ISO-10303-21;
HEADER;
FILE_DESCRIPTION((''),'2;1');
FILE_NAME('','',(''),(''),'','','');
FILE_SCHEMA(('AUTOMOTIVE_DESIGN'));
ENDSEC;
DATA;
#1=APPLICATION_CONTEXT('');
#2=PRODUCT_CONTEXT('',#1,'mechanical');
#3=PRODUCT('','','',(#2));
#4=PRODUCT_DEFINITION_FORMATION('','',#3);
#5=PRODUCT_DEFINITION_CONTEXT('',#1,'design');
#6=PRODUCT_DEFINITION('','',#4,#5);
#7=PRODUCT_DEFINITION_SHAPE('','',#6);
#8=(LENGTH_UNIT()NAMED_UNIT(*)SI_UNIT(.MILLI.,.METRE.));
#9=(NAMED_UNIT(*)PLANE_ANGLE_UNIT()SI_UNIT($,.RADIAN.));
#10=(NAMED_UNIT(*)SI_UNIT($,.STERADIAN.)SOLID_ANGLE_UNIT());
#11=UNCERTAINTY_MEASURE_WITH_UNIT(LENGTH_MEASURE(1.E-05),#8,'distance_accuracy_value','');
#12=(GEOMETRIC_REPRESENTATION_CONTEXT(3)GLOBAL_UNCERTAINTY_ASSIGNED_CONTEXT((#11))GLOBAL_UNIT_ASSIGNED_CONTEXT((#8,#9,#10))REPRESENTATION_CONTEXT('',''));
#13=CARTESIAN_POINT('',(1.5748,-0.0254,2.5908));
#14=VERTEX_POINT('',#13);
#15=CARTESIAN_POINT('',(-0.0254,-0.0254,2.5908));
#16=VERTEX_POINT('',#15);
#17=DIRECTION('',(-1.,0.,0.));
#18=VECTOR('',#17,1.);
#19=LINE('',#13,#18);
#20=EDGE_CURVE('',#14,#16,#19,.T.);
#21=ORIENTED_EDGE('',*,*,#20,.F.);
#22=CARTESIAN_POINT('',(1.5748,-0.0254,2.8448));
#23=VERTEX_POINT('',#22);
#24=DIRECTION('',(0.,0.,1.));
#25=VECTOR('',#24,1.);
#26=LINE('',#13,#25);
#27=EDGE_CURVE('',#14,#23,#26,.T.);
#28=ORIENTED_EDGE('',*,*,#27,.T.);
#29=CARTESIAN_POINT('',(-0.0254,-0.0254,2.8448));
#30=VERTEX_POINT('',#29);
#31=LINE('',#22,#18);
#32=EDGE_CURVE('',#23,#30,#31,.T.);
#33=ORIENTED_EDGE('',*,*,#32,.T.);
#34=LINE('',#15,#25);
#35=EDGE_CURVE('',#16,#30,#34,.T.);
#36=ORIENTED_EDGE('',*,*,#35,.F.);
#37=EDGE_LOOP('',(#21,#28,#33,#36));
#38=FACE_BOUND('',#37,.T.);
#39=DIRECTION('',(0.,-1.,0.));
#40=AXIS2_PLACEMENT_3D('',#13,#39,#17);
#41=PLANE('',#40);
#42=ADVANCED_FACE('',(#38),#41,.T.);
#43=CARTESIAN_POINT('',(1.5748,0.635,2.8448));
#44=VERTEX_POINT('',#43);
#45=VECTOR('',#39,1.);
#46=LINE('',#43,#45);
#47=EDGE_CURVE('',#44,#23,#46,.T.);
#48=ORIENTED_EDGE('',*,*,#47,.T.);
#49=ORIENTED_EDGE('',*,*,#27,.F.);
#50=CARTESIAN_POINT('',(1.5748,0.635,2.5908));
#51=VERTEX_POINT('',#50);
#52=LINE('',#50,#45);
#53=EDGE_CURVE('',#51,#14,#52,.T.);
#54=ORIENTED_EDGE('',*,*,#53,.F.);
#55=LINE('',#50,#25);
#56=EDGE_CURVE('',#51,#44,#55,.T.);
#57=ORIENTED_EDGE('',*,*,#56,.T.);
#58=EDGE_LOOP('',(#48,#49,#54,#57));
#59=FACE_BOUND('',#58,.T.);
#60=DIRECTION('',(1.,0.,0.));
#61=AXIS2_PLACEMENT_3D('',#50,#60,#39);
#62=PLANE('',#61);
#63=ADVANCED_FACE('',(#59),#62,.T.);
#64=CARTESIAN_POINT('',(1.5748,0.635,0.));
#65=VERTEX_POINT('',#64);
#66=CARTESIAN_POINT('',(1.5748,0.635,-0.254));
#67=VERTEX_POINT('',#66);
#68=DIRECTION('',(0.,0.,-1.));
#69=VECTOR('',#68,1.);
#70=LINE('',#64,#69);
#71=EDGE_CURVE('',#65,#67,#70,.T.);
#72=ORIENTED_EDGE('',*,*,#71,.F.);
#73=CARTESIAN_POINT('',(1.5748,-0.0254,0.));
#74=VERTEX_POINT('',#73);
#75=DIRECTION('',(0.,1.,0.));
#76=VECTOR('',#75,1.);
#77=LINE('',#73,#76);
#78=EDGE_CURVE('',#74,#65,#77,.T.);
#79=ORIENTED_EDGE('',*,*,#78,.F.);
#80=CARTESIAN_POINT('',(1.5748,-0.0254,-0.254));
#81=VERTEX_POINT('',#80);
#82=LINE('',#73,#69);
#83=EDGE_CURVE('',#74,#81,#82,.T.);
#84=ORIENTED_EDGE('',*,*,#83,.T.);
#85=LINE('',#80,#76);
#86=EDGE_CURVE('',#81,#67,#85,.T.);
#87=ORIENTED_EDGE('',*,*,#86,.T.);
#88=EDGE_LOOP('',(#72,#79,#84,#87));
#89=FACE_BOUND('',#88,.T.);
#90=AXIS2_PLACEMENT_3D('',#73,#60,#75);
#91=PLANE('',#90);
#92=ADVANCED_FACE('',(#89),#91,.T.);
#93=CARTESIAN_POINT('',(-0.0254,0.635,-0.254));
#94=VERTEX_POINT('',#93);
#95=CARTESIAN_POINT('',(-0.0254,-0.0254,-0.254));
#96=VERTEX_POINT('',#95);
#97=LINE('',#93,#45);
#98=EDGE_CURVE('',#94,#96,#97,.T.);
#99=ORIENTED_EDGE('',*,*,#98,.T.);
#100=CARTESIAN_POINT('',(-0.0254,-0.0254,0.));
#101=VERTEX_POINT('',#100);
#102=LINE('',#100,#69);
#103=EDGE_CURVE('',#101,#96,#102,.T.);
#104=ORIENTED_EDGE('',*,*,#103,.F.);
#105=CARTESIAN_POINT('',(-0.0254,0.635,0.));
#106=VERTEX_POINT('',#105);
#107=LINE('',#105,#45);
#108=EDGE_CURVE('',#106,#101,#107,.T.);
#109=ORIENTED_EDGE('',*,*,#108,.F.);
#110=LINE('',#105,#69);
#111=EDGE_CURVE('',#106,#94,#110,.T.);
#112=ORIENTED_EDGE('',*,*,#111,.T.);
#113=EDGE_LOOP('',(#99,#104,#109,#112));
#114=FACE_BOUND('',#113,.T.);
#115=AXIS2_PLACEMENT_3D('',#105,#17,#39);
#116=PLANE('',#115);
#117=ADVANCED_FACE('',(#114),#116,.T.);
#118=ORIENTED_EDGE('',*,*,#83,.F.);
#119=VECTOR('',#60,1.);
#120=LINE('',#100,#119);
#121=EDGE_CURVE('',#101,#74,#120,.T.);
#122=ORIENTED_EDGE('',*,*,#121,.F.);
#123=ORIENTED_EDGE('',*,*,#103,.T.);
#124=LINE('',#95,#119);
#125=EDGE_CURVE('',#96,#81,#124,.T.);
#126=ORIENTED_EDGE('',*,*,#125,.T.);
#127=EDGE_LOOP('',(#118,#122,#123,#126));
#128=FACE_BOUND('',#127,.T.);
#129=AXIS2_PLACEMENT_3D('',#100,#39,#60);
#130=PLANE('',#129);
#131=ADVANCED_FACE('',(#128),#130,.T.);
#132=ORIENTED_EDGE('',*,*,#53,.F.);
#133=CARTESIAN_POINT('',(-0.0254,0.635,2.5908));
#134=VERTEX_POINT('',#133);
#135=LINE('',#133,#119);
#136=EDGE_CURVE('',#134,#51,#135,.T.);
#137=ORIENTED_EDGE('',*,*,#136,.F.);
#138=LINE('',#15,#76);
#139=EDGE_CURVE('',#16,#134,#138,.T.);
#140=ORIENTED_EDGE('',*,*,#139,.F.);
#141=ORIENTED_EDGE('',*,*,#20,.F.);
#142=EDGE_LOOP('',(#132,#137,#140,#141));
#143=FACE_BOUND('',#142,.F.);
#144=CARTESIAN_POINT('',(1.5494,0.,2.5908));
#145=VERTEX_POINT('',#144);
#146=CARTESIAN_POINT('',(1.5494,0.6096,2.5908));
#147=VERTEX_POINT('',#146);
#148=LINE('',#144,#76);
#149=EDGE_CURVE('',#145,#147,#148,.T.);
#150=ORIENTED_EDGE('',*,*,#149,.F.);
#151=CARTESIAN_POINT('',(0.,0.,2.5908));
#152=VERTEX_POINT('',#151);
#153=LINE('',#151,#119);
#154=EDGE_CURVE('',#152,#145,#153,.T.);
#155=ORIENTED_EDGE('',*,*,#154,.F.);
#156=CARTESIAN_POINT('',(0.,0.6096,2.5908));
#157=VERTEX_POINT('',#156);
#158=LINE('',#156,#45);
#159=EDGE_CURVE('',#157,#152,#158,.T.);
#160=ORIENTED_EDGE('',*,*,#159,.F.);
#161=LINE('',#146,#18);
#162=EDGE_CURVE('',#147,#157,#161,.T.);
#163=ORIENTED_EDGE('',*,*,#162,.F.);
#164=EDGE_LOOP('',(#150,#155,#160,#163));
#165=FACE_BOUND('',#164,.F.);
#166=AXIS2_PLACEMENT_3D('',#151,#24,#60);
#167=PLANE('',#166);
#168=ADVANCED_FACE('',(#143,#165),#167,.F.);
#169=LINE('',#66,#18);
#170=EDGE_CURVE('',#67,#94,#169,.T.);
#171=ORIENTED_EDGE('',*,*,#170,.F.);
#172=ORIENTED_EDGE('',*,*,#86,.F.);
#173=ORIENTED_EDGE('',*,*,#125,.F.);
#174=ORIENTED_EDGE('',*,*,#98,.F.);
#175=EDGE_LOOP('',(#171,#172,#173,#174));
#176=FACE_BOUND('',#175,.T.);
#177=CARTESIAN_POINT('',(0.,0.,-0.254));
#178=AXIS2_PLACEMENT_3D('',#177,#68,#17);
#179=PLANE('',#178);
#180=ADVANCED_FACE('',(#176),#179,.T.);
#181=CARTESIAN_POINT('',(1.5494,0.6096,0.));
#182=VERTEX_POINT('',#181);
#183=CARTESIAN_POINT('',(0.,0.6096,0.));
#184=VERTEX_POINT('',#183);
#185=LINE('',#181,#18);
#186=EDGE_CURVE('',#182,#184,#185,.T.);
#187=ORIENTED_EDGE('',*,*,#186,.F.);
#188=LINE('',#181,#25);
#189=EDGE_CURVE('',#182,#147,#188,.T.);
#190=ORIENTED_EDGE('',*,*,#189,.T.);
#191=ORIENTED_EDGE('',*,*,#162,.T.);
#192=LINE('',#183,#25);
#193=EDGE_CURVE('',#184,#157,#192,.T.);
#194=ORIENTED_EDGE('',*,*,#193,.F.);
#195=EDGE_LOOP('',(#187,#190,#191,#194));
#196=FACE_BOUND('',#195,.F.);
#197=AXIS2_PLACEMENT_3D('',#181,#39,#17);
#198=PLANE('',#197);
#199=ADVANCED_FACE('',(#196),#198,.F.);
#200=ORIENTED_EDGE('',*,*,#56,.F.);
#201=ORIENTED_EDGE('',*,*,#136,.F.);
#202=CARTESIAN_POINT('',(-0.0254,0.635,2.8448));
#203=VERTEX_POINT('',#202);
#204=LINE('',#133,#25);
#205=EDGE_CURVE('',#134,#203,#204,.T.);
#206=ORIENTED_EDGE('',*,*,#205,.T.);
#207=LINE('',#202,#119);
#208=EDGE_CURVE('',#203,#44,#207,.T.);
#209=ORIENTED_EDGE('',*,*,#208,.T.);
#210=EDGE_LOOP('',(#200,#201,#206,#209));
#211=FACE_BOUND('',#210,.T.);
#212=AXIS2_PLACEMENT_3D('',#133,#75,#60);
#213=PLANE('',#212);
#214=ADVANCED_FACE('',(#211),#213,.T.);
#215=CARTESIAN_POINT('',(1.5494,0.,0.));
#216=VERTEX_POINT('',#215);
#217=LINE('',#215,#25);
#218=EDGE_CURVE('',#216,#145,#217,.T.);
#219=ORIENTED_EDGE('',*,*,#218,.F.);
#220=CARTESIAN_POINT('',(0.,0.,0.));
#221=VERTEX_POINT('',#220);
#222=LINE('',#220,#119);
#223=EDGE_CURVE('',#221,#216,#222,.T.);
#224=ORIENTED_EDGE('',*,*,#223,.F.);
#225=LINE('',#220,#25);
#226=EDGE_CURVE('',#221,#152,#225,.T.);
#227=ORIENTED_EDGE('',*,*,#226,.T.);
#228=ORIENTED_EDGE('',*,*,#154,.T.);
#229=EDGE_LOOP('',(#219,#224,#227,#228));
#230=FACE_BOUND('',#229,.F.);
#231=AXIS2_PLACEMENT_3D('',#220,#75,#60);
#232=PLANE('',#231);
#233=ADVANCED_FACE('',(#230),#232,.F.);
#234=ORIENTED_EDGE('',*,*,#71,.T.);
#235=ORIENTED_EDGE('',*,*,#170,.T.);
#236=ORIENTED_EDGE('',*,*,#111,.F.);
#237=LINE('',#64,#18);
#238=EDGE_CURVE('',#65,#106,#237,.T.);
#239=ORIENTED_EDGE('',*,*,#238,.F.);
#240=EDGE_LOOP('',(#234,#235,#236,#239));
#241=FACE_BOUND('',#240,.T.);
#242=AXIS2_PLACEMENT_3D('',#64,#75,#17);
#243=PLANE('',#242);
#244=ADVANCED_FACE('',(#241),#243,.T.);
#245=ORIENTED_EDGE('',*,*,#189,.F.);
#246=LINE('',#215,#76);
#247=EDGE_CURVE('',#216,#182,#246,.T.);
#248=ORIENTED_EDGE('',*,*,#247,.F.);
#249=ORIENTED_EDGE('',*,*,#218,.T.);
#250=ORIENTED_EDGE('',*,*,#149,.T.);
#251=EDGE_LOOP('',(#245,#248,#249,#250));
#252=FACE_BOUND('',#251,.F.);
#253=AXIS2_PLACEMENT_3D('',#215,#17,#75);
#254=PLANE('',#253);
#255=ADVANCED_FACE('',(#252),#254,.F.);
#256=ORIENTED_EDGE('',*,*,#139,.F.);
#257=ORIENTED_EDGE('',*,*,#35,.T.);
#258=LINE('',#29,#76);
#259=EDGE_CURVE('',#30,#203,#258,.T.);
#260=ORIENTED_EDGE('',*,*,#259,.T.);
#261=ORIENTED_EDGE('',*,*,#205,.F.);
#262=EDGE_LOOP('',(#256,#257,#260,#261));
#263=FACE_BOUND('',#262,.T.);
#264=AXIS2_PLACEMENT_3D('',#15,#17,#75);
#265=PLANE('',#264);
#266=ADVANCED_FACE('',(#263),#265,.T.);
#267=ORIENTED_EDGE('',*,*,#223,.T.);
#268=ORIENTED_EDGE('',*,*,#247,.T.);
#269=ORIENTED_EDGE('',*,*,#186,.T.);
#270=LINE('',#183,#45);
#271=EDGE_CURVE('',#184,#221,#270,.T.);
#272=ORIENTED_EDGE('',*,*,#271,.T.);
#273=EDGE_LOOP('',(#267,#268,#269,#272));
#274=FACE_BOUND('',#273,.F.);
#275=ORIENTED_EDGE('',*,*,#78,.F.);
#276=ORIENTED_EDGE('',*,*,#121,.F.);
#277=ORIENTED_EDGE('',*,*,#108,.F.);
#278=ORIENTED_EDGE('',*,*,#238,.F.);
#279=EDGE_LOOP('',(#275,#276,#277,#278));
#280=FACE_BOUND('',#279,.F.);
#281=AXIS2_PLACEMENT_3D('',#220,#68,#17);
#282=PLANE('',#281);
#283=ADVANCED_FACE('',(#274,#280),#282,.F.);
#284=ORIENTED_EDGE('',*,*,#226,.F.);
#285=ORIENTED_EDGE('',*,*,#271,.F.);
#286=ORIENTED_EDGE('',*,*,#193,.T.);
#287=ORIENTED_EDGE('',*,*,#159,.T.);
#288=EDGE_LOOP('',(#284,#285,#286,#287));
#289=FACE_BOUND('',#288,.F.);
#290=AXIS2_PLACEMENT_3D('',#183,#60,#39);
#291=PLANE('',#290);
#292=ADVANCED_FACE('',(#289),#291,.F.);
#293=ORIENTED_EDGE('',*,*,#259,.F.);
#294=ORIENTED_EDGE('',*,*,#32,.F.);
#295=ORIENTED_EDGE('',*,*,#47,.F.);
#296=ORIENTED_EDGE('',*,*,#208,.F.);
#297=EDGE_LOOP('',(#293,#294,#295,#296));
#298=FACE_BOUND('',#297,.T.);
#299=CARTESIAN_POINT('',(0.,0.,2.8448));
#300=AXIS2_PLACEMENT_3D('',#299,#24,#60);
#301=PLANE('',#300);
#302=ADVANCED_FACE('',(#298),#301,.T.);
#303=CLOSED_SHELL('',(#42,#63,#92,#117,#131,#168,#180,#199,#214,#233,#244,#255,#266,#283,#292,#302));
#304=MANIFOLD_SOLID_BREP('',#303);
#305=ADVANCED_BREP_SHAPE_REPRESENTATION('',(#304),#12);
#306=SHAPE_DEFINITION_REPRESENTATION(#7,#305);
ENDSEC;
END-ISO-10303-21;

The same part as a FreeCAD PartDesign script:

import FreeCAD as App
import Part
import Sketcher
from FreeCAD import Vector
Q = App.Units.Quantity


def add_polygon(sketch, points):
    """Adds a closed chain of lines whose ends are joined by coincident constraints."""
    first, n = sketch.GeometryCount, len(points)
    for a, b in zip(points, points[1:] + points[:1]):
        sketch.addGeometry(Part.LineSegment(App.Vector(*a, 0), App.Vector(*b, 0)), False)
    for i in range(n):
        sketch.addConstraint(Sketcher.Constraint("Coincident", first + i, 2, first + (i + 1) % n, 1))

doc = App.newDocument("Part")
body = doc.addObject("PartDesign::Body", "Body")

# Sketch on XY plane
sketch1 = body.newObject("Sketcher::SketchObject", "Sketch")
sketch1.AttachmentSupport = (doc.getObject("XY_Plane"), [""])
sketch1.MapMode = "FlatFace"
add_polygon(sketch1, [(0, 0.6), (0, 0), (1.5, 0), (1.5, 0.6)])  # lines 0-3
sketch1.addConstraint(Sketcher.Constraint("Vertical", 0))
sketch1.addConstraint(Sketcher.Constraint("Horizontal", 1))
sketch1.addConstraint(Sketcher.Constraint("Vertical", 2))
sketch1.addConstraint(Sketcher.Constraint("Horizontal", 3))
sketch1.addConstraint(Sketcher.Constraint("Coincident", 0, 2, -1, 1))
sketch1.addConstraint(Sketcher.Constraint("DistanceX", 1, 1, 1, 2, Q("0.061 in")))
sketch1.addConstraint(Sketcher.Constraint("DistanceY", 0, 2, 0, 1, Q("0.024 in")))
pad1 = body.newObject("PartDesign::Pad", "Pad")
pad1.Profile = sketch1
pad1.Length = Q("0.102 in")

# Sketch on XY plane
sketch2 = body.newObject("Sketcher::SketchObject", "Sketch001")
sketch2.AttachmentSupport = (doc.getObject("XY_Plane"), [""])
sketch2.MapMode = "FlatFace"
sketch2.AttachmentOffset = App.Placement(Vector(0, 0, 0.102 * 25.4), App.Rotation())
add_polygon(sketch2, [(1.6, 0.6), (0, 0.6), (0, 0), (1.6, 0)])  # lines 0-3
sketch2.addConstraint(Sketcher.Constraint("Horizontal", 0))
sketch2.addConstraint(Sketcher.Constraint("Vertical", 1))
sketch2.addConstraint(Sketcher.Constraint("Horizontal", 2))
sketch2.addConstraint(Sketcher.Constraint("Vertical", 3))
sketch2.addConstraint(Sketcher.Constraint("DistanceX", 0, 2, -1, 1, Q("0.001 in")))
sketch2.addConstraint(Sketcher.Constraint("DistanceY", 1, 2, -1, 1, Q("0.001 in")))
sketch2.addConstraint(Sketcher.Constraint("DistanceX", 0, 2, 0, 1, Q("0.063 in")))
sketch2.addConstraint(Sketcher.Constraint("DistanceY", 1, 2, 1, 1, Q("0.026 in")))
pad2 = body.newObject("PartDesign::Pad", "Pad001")
pad2.Profile = sketch2
pad2.Length = Q("0.01 in")

# Sketch on XY plane
sketch3 = body.newObject("Sketcher::SketchObject", "Sketch002")
sketch3.AttachmentSupport = (doc.getObject("XY_Plane"), [""])
sketch3.MapMode = "FlatFace"
add_polygon(sketch3, [(1.6, 0), (0, 0), (0, 0.6), (1.6, 0.6)])  # lines 0-3
sketch3.addConstraint(Sketcher.Constraint("Horizontal", 0))
sketch3.addConstraint(Sketcher.Constraint("Vertical", 1))
sketch3.addConstraint(Sketcher.Constraint("Horizontal", 2))
sketch3.addConstraint(Sketcher.Constraint("Vertical", 3))
sketch3.addConstraint(Sketcher.Constraint("DistanceX", 0, 2, 0, 1, Q("0.063 in")))
sketch3.addConstraint(Sketcher.Constraint("DistanceY", 1, 1, 1, 2, Q("0.026 in")))
sketch3.addConstraint(Sketcher.Constraint("DistanceX", 0, 2, -1, 1, Q("0.001 in")))
sketch3.addConstraint(Sketcher.Constraint("DistanceY", 0, 2, -1, 1, Q("0.001 in")))
pad3 = body.newObject("PartDesign::Pad", "Pad002")
pad3.Profile = sketch3
pad3.Length = Q("0.01 in")
pad3.Reversed = True

doc.recompute()
